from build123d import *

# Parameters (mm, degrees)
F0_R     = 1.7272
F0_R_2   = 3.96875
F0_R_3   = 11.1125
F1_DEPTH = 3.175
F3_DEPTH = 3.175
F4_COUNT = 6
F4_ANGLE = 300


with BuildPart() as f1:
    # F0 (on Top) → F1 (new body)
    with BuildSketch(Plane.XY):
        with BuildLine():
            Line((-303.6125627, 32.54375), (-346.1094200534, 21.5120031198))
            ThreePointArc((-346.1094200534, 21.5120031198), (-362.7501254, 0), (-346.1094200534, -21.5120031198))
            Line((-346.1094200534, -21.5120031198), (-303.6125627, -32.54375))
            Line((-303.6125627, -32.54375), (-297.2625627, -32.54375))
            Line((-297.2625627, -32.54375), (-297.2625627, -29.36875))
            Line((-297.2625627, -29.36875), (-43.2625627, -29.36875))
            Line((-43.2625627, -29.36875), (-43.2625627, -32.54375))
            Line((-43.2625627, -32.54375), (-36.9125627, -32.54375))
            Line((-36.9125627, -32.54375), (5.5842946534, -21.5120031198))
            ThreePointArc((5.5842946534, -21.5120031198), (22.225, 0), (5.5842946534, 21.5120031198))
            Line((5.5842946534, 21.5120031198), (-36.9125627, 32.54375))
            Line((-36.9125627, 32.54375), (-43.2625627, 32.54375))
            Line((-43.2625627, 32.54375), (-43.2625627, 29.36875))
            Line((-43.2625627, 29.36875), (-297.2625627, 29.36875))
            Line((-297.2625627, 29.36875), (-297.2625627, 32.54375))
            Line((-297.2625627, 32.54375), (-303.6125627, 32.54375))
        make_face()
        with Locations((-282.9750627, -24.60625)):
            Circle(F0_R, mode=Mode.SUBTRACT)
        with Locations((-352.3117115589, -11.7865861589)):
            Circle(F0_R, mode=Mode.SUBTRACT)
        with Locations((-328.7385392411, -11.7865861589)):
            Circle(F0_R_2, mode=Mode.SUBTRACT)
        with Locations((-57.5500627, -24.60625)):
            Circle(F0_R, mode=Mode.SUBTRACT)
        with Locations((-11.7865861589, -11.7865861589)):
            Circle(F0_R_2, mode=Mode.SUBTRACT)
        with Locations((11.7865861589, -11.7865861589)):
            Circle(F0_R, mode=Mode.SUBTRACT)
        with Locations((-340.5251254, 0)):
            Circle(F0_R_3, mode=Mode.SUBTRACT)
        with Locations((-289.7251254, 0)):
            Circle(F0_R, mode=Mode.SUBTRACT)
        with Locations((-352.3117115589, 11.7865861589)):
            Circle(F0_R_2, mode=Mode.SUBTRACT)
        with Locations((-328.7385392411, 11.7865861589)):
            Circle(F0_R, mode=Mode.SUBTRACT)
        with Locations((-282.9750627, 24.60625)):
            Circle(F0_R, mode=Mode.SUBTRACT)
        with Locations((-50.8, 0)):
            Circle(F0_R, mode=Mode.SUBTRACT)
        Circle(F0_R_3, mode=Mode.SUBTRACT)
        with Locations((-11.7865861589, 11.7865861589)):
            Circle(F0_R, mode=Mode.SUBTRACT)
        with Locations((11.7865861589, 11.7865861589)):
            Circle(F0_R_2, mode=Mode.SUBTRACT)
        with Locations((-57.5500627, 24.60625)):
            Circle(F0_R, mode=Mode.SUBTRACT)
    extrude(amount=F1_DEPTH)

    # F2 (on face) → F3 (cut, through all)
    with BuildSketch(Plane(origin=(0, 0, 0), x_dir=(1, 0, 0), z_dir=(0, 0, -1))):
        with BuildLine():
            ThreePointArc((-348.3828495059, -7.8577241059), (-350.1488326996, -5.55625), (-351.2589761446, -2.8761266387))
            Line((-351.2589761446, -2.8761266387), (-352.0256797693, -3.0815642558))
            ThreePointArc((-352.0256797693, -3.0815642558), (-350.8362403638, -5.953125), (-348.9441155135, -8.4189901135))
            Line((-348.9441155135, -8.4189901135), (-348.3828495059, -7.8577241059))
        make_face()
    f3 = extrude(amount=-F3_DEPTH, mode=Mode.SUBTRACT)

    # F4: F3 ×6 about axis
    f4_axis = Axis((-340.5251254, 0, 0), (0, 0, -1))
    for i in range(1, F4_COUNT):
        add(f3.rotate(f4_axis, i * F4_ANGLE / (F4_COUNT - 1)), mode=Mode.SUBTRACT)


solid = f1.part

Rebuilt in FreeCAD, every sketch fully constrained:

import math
import FreeCAD as App
import Part
import Sketcher

V = App.Vector
Q = App.Units.Quantity

doc = App.newDocument("Part")
body = doc.addObject("PartDesign::Body", "Body")

# Sketch on XY plane
sketch1 = body.newObject("Sketcher::SketchObject", "Sketch")
sketch1.AttachmentSupport = (doc.getObject("XY_Plane"), [""])
sketch1.MapMode = "FlatFace"
sketch1.addGeometry(Part.LineSegment(V(-303.6, 32.5, 0), V(-346.1, 21.5, 0)), False)
sketch1.addGeometry(Part.ArcOfCircle(Part.Circle(V(-340.5, 0, 0), V(0, 0, 1), 22.2), math.radians(105), math.radians(255)), False)
sketch1.addGeometry(Part.LineSegment(V(-346.1, -21.5, 0), V(-303.6, -32.5, 0)), False)
sketch1.addGeometry(Part.LineSegment(V(-303.6, -32.5, 0), V(-297.3, -32.5, 0)), False)
sketch1.addGeometry(Part.LineSegment(V(-297.3, -32.5, 0), V(-297.3, -29.4, 0)), False)
sketch1.addGeometry(Part.LineSegment(V(-297.3, -29.4, 0), V(-43.3, -29.4, 0)), False)
sketch1.addGeometry(Part.LineSegment(V(-43.3, -29.4, 0), V(-43.3, -32.5, 0)), False)
sketch1.addGeometry(Part.LineSegment(V(-43.3, -32.5, 0), V(-36.9, -32.5, 0)), False)
sketch1.addGeometry(Part.LineSegment(V(-36.9, -32.5, 0), V(5.6, -21.5, 0)), False)
sketch1.addGeometry(Part.ArcOfCircle(Part.Circle(V(0, 0, 0), V(0, 0, 1), 22.2), math.radians(-75), math.radians(75)), False)
sketch1.addGeometry(Part.LineSegment(V(5.6, 21.5, 0), V(-36.9, 32.5, 0)), False)
sketch1.addGeometry(Part.LineSegment(V(-36.9, 32.5, 0), V(-43.3, 32.5, 0)), False)
sketch1.addGeometry(Part.LineSegment(V(-43.3, 32.5, 0), V(-43.3, 29.4, 0)), False)
sketch1.addGeometry(Part.LineSegment(V(-43.3, 29.4, 0), V(-297.3, 29.4, 0)), False)
sketch1.addGeometry(Part.LineSegment(V(-297.3, 29.4, 0), V(-297.3, 32.5, 0)), False)
sketch1.addGeometry(Part.LineSegment(V(-297.3, 32.5, 0), V(-303.6, 32.5, 0)), False)
sketch1.addGeometry(Part.Circle(V(-283, -24.6, 0), V(0, 0, 1), 1.7), False)
sketch1.addGeometry(Part.Circle(V(-352.3, -11.8, 0), V(0, 0, 1), 1.7), False)
sketch1.addGeometry(Part.Circle(V(-328.7, -11.8, 0), V(0, 0, 1), 4), False)
sketch1.addGeometry(Part.Circle(V(-57.6, -24.6, 0), V(0, 0, 1), 1.7), False)
sketch1.addGeometry(Part.Circle(V(-11.8, -11.8, 0), V(0, 0, 1), 4), False)
sketch1.addGeometry(Part.Circle(V(11.8, -11.8, 0), V(0, 0, 1), 1.7), False)
sketch1.addGeometry(Part.Circle(V(-340.5, 0, 0), V(0, 0, 1), 11.1), False)
sketch1.addGeometry(Part.Circle(V(-289.7, 0, 0), V(0, 0, 1), 1.7), False)
sketch1.addGeometry(Part.Circle(V(-352.3, 11.8, 0), V(0, 0, 1), 4), False)
sketch1.addGeometry(Part.Circle(V(-328.7, 11.8, 0), V(0, 0, 1), 1.7), False)
sketch1.addGeometry(Part.Circle(V(-283, 24.6, 0), V(0, 0, 1), 1.7), False)
sketch1.addGeometry(Part.Circle(V(-50.8, 0, 0), V(0, 0, 1), 1.7), False)
sketch1.addGeometry(Part.Circle(V(0, 0, 0), V(0, 0, 1), 11.1), False)
sketch1.addGeometry(Part.Circle(V(-11.8, 11.8, 0), V(0, 0, 1), 1.7), False)
sketch1.addGeometry(Part.Circle(V(11.8, 11.8, 0), V(0, 0, 1), 4), False)
sketch1.addGeometry(Part.Circle(V(-57.6, 24.6, 0), V(0, 0, 1), 1.7), False)
sketch1.addConstraint(Sketcher.Constraint("Tangent", 0, 2, 1, 1))
sketch1.addConstraint(Sketcher.Constraint("Tangent", 1, 2, 2, 1))
sketch1.addConstraint(Sketcher.Constraint("Coincident", 2, 2, 3, 1))
sketch1.addConstraint(Sketcher.Constraint("Coincident", 3, 2, 4, 1))
sketch1.addConstraint(Sketcher.Constraint("Coincident", 4, 2, 5, 1))
sketch1.addConstraint(Sketcher.Constraint("Coincident", 5, 2, 6, 1))
sketch1.addConstraint(Sketcher.Constraint("Coincident", 6, 2, 7, 1))
sketch1.addConstraint(Sketcher.Constraint("Coincident", 7, 2, 8, 1))
sketch1.addConstraint(Sketcher.Constraint("Tangent", 8, 2, 9, 1))
sketch1.addConstraint(Sketcher.Constraint("Tangent", 9, 2, 10, 1))
sketch1.addConstraint(Sketcher.Constraint("Coincident", 10, 2, 11, 1))
sketch1.addConstraint(Sketcher.Constraint("Coincident", 11, 2, 12, 1))
sketch1.addConstraint(Sketcher.Constraint("Coincident", 12, 2, 13, 1))
sketch1.addConstraint(Sketcher.Constraint("Coincident", 13, 2, 14, 1))
sketch1.addConstraint(Sketcher.Constraint("Coincident", 14, 2, 15, 1))
sketch1.addConstraint(Sketcher.Constraint("Coincident", 15, 2, 0, 1))
sketch1.addConstraint(Sketcher.Constraint("Horizontal", 3))
sketch1.addConstraint(Sketcher.Constraint("Vertical", 4))
sketch1.addConstraint(Sketcher.Constraint("Horizontal", 5))
sketch1.addConstraint(Sketcher.Constraint("Vertical", 6))
sketch1.addConstraint(Sketcher.Constraint("Horizontal", 7))
sketch1.addConstraint(Sketcher.Constraint("Horizontal", 11))
sketch1.addConstraint(Sketcher.Constraint("Vertical", 12))
sketch1.addConstraint(Sketcher.Constraint("Horizontal", 13))
sketch1.addConstraint(Sketcher.Constraint("Vertical", 14))
sketch1.addConstraint(Sketcher.Constraint("Horizontal", 15))
sketch1.addConstraint(Sketcher.Constraint("Coincident", 9, 3, -1, 1))
sketch1.addConstraint(Sketcher.Constraint("Coincident", 28, 3, -1, 1))
sketch1.addConstraint(Sketcher.Constraint("Coincident", 22, 3, 1, 3))
sketch1.addConstraint(Sketcher.Constraint("Equal", 1, 9))
sketch1.addConstraint(Sketcher.Constraint("Equal", 16, 17))
sketch1.addConstraint(Sketcher.Constraint("Equal", 17, 19))
sketch1.addConstraint(Sketcher.Constraint("Equal", 18, 20))
sketch1.addConstraint(Sketcher.Constraint("Equal", 19, 21))
sketch1.addConstraint(Sketcher.Constraint("Equal", 21, 23))
sketch1.addConstraint(Sketcher.Constraint("Equal", 20, 24))
sketch1.addConstraint(Sketcher.Constraint("Equal", 23, 25))
sketch1.addConstraint(Sketcher.Constraint("Equal", 25, 26))
sketch1.addConstraint(Sketcher.Constraint("Equal", 26, 27))
sketch1.addConstraint(Sketcher.Constraint("Equal", 22, 28))
sketch1.addConstraint(Sketcher.Constraint("Equal", 27, 29))
sketch1.addConstraint(Sketcher.Constraint("Equal", 24, 30))
sketch1.addConstraint(Sketcher.Constraint("Equal", 29, 31))
sketch1.addConstraint(Sketcher.Constraint("Symmetric", 21, 3, 29, 3, -1, 1))
sketch1.addConstraint(Sketcher.Constraint("Symmetric", 20, 3, 30, 3, -1, 1))
sketch1.addConstraint(Sketcher.Constraint("Symmetric", 20, 3, 21, 3, -2))
sketch1.addConstraint(Sketcher.Constraint("Symmetric", 17, 3, 24, 3, -1))
sketch1.addConstraint(Sketcher.Constraint("Symmetric", 18, 3, 25, 3, -1))
sketch1.addConstraint(Sketcher.Constraint("Symmetric", 16, 3, 26, 3, -1))
sketch1.addConstraint(Sketcher.Constraint("Symmetric", 19, 3, 31, 3, -1))
sketch1.addConstraint(Sketcher.Constraint("Symmetric", 0, 2, 1, 2, -1))
sketch1.addConstraint(Sketcher.Constraint("Symmetric", 7, 2, 10, 2, -1))
sketch1.addConstraint(Sketcher.Constraint("Symmetric", 5, 2, 12, 2, -1))
sketch1.addConstraint(Sketcher.Constraint("Symmetric", 3, 2, 14, 2, -1))
sketch1.addConstraint(Sketcher.Constraint("PointOnObject", 23, 3, -1))
sketch1.addConstraint(Sketcher.Constraint("PointOnObject", 27, 3, -1))
sketch1.addConstraint(Sketcher.Constraint("Parallel", 0, 8))
sketch1.addConstraint(Sketcher.Constraint("Horizontal", 17, 3, 18, 3))
sketch1.addConstraint(Sketcher.Constraint("Horizontal", 16, 3, 19, 3))
sketch1.addConstraint(Sketcher.Constraint("Horizontal", 18, 3, 20, 3))
sketch1.addConstraint(Sketcher.Constraint("Horizontal", 3, 2, 6, 2))
sketch1.addConstraint(Sketcher.Constraint("Equal", 3, 7))
sketch1.addConstraint(Sketcher.Constraint("DistanceX", 5, 1, 5, 2, Q("10 in")))
sketch1.addConstraint(Sketcher.Constraint("Diameter", 16, Q("0.136 in")))
sketch1.addConstraint(Sketcher.Constraint("Diameter", 18, Q("0.3125 in")))
sketch1.addConstraint(Sketcher.Constraint("Diameter", 22, Q("0.875 in")))
sketch1.addConstraint(Sketcher.Constraint("DistanceX", 27, 3, -1, 1, Q("2 in")))
sketch1.addConstraint(Sketcher.Constraint("Radius", 1, Q("0.875 in")))
sketch1.addConstraint(Sketcher.Constraint("DistanceX", 1, 3, 23, 3, Q("2 in")))
sketch1.addConstraint(Sketcher.Constraint("DistanceX", 3, 1, 3, 2, Q("0.25 in")))
sketch1.addConstraint(Sketcher.Constraint("DistanceY", 4, 1, 4, 2, Q("0.125 in")))
sketch1.addConstraint(Sketcher.Constraint("DistanceY", 16, 3, -1, 1, Q("0.96875 in")))
sketch1.addConstraint(Sketcher.Constraint("DistanceY", 2, 2, -1, 1, Q("1.28125 in")))
sketch1.addConstraint(Sketcher.Constraint("DistanceX", 16, 3, 19, 3, Q("8.875 in")))
sketch1.addConstraint(Sketcher.Constraint("DistanceX", 2, 2, 16, 3, Q("0.8125 in")))
sketch1.addConstraint(Sketcher.Constraint("Distance", 0, 43.905379))
sketch1.addConstraint(Sketcher.Constraint("DistanceX", 17, 3, -1, 1, 352.311712))
sketch1.addConstraint(Sketcher.Constraint("DistanceX", 18, 3, -1, 1, 328.738539))
sketch1.addConstraint(Sketcher.Constraint("DistanceX", 1, 3, 20, 3, 328.738539))
sketch1.addConstraint(Sketcher.Constraint("DistanceY", 17, 3, 0, 2, 33.298589))
pad1 = body.newObject("PartDesign::Pad", "Pad")
pad1.Profile = sketch1
pad1.Length = Q("0.125 in")

# Sketch on XY plane
sketch2 = body.newObject("Sketcher::SketchObject", "Sketch001")
sketch2.AttachmentSupport = (doc.getObject("XY_Plane"), [""])
sketch2.MapMode = "FlatFace"
sketch2.addGeometry(Part.ArcOfCircle(Part.Circle(V(-340.5, 0, 0), V(0, 0, 1), 11.1), math.radians(135), math.radians(165)), False)
sketch2.addGeometry(Part.LineSegment(V(-351.3, 2.9, 0), V(-352, 3.1, 0)), False)
sketch2.addGeometry(Part.ArcOfCircle(Part.Circle(V(-340.5, 0, 0), V(0, 0, 1), 11.9), math.radians(135), math.radians(165)), False)
sketch2.addGeometry(Part.LineSegment(V(-348.9, 8.4, 0), V(-348.4, 7.9, 0)), False)
sketch2.addConstraint(Sketcher.Constraint("Coincident", 0, 2, 1, 1))
sketch2.addConstraint(Sketcher.Constraint("Coincident", 1, 2, 2, 2))
sketch2.addConstraint(Sketcher.Constraint("Coincident", 2, 1, 3, 1))
sketch2.addConstraint(Sketcher.Constraint("Coincident", 3, 2, 0, 1))
sketch2.addConstraint(Sketcher.Constraint("Coincident", 2, 3, 0, 3))
sketch2.addConstraint(Sketcher.Constraint("PointOnObject", 0, 3, -1))
sketch2.addConstraint(Sketcher.Constraint("Angle", 1, Q("165 deg")))
sketch2.addConstraint(Sketcher.Constraint("Angle", 3, Q("-45 deg")))
sketch2.addConstraint(Sketcher.Constraint("Radius", 0, Q("0.4375 in")))
sketch2.addConstraint(Sketcher.Constraint("Radius", 2, Q("0.46875 in")))
sketch2.addConstraint(Sketcher.Constraint("DistanceX", 1, 2, -1, 1, 352.02568))
sketch2.addConstraint(Sketcher.Constraint("DistanceY", -1, 1, 2, 1, 8.41899))
sketch2.addConstraint(Sketcher.Constraint("DistanceX", 3, 2, -1, 1, 348.38285))
pocket1 = body.newObject("PartDesign::Pocket", "Pocket")
pocket1.Profile = sketch2
pocket1.Type = "ThroughAll"
pocket1.Reversed = True
doc.recompute()

datumline = body.newObject("PartDesign::Line", "DatumLine")
datumline.Placement = App.Placement(V(-340.525125, 0, 0), App.Rotation(V(0, 0, 1), V(0, 0, -1)))
polarpattern = body.newObject("PartDesign::PolarPattern", "PolarPattern")
polarpattern.Originals = [pocket1]
polarpattern.Axis = (datumline, [""])
polarpattern.Angle = 360
polarpattern.Occurrences = 6
body.Tip = polarpattern

doc.recompute()
